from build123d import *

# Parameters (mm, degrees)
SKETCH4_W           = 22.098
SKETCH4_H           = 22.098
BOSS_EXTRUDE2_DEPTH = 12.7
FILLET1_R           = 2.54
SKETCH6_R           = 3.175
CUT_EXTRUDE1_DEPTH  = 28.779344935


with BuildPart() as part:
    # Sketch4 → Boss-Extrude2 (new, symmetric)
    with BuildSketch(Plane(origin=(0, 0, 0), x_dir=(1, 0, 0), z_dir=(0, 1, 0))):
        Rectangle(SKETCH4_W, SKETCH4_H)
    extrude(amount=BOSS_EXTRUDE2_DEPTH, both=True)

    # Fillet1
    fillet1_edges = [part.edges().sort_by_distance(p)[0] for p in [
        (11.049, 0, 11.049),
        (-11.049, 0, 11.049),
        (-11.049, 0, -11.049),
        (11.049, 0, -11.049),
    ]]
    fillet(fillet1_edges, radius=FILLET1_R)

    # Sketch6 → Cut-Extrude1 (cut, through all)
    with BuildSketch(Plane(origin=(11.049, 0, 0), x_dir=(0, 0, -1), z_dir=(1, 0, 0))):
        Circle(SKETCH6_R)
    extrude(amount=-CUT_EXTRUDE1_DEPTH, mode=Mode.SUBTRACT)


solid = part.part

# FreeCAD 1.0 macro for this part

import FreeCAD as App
import Part
import Sketcher

V = App.Vector
Q = App.Units.Quantity


def edges_at(feature, points):
    """Names of the edges that pass closest to the given points."""
    edges = feature.Shape.Edges
    near = lambda p: min(range(len(edges)), key=lambda i: edges[i].distToShape(Part.Vertex(*p))[0])
    return sorted({f"Edge{near(p) + 1}" for p in points})

doc = App.newDocument("Part")
body = doc.addObject("PartDesign::Body", "Body")

sketch1 = doc.addObject("Sketcher::SketchObject", "Sketch")
body.addObject(sketch1)
sketch1.AttachmentSupport = (doc.XZ_Plane, [""])
sketch1.MapMode = "FlatFace"
sketch1.addGeometry([
    Part.LineSegment(V(-11.049, -11.049, 0), V(-11.049, 11.049, 0)),
    Part.LineSegment(V(-11.049, 11.049, 0), V(11.049, 11.049, 0)),
    Part.LineSegment(V(11.049, 11.049, 0), V(11.049, -11.049, 0)),
    Part.LineSegment(V(11.049, -11.049, 0), V(-11.049, -11.049, 0)),
], False)
sketch1.addConstraint([
    Sketcher.Constraint("Coincident", 0, 2, 1, 1),
    Sketcher.Constraint("Coincident", 1, 2, 2, 1),
    Sketcher.Constraint("Coincident", 2, 2, 3, 1),
    Sketcher.Constraint("Coincident", 3, 2, 0, 1),
    Sketcher.Constraint("Vertical", 0),
    Sketcher.Constraint("Horizontal", 1),
    Sketcher.Constraint("Vertical", 2),
    Sketcher.Constraint("Horizontal", 3),
    Sketcher.Constraint("Symmetric", 0, 2, 2, 2, -1, 1),
    Sketcher.Constraint("Equal", 3, 0),
    Sketcher.Constraint("DistanceX", 1, 1, 1, 2, Q("0.87 in")),
])
pad1 = doc.addObject("PartDesign::Pad", "Pad")
body.addObject(pad1)
pad1.Profile = sketch1
pad1.Length = Q("1 in")
pad1.Midplane = True
doc.recompute()

fillet = doc.addObject("PartDesign::Fillet", "Fillet")
body.addObject(fillet)
fillet.Base = (pad1, edges_at(pad1, [
    (11.049, 0, 11.049),
    (-11.049, 0, 11.049),
    (-11.049, 0, -11.049),
    (11.049, 0, -11.049),
]))
fillet.Radius = Q("0.1 in")

sketch2 = doc.addObject("Sketcher::SketchObject", "Sketch001")
body.addObject(sketch2)
sketch2.AttachmentSupport = (doc.YZ_Plane, [""])
sketch2.MapMode = "FlatFace"
sketch2.AttachmentOffset = App.Placement(V(0, 0, 0.435 * 25.4), App.Rotation())
sketch2.addGeometry(Part.Circle(V(0, 0, 0), V(0, 0, 1), 3.175), False)
sketch2.addConstraint([
    Sketcher.Constraint("Coincident", 0, 3, -1, 1),
    Sketcher.Constraint("Diameter", 0, Q("0.25 in")),
])
pocket1 = doc.addObject("PartDesign::Pocket", "Pocket")
body.addObject(pocket1)
pocket1.Profile = sketch2
pocket1.Type = "ThroughAll"

doc.recompute()
